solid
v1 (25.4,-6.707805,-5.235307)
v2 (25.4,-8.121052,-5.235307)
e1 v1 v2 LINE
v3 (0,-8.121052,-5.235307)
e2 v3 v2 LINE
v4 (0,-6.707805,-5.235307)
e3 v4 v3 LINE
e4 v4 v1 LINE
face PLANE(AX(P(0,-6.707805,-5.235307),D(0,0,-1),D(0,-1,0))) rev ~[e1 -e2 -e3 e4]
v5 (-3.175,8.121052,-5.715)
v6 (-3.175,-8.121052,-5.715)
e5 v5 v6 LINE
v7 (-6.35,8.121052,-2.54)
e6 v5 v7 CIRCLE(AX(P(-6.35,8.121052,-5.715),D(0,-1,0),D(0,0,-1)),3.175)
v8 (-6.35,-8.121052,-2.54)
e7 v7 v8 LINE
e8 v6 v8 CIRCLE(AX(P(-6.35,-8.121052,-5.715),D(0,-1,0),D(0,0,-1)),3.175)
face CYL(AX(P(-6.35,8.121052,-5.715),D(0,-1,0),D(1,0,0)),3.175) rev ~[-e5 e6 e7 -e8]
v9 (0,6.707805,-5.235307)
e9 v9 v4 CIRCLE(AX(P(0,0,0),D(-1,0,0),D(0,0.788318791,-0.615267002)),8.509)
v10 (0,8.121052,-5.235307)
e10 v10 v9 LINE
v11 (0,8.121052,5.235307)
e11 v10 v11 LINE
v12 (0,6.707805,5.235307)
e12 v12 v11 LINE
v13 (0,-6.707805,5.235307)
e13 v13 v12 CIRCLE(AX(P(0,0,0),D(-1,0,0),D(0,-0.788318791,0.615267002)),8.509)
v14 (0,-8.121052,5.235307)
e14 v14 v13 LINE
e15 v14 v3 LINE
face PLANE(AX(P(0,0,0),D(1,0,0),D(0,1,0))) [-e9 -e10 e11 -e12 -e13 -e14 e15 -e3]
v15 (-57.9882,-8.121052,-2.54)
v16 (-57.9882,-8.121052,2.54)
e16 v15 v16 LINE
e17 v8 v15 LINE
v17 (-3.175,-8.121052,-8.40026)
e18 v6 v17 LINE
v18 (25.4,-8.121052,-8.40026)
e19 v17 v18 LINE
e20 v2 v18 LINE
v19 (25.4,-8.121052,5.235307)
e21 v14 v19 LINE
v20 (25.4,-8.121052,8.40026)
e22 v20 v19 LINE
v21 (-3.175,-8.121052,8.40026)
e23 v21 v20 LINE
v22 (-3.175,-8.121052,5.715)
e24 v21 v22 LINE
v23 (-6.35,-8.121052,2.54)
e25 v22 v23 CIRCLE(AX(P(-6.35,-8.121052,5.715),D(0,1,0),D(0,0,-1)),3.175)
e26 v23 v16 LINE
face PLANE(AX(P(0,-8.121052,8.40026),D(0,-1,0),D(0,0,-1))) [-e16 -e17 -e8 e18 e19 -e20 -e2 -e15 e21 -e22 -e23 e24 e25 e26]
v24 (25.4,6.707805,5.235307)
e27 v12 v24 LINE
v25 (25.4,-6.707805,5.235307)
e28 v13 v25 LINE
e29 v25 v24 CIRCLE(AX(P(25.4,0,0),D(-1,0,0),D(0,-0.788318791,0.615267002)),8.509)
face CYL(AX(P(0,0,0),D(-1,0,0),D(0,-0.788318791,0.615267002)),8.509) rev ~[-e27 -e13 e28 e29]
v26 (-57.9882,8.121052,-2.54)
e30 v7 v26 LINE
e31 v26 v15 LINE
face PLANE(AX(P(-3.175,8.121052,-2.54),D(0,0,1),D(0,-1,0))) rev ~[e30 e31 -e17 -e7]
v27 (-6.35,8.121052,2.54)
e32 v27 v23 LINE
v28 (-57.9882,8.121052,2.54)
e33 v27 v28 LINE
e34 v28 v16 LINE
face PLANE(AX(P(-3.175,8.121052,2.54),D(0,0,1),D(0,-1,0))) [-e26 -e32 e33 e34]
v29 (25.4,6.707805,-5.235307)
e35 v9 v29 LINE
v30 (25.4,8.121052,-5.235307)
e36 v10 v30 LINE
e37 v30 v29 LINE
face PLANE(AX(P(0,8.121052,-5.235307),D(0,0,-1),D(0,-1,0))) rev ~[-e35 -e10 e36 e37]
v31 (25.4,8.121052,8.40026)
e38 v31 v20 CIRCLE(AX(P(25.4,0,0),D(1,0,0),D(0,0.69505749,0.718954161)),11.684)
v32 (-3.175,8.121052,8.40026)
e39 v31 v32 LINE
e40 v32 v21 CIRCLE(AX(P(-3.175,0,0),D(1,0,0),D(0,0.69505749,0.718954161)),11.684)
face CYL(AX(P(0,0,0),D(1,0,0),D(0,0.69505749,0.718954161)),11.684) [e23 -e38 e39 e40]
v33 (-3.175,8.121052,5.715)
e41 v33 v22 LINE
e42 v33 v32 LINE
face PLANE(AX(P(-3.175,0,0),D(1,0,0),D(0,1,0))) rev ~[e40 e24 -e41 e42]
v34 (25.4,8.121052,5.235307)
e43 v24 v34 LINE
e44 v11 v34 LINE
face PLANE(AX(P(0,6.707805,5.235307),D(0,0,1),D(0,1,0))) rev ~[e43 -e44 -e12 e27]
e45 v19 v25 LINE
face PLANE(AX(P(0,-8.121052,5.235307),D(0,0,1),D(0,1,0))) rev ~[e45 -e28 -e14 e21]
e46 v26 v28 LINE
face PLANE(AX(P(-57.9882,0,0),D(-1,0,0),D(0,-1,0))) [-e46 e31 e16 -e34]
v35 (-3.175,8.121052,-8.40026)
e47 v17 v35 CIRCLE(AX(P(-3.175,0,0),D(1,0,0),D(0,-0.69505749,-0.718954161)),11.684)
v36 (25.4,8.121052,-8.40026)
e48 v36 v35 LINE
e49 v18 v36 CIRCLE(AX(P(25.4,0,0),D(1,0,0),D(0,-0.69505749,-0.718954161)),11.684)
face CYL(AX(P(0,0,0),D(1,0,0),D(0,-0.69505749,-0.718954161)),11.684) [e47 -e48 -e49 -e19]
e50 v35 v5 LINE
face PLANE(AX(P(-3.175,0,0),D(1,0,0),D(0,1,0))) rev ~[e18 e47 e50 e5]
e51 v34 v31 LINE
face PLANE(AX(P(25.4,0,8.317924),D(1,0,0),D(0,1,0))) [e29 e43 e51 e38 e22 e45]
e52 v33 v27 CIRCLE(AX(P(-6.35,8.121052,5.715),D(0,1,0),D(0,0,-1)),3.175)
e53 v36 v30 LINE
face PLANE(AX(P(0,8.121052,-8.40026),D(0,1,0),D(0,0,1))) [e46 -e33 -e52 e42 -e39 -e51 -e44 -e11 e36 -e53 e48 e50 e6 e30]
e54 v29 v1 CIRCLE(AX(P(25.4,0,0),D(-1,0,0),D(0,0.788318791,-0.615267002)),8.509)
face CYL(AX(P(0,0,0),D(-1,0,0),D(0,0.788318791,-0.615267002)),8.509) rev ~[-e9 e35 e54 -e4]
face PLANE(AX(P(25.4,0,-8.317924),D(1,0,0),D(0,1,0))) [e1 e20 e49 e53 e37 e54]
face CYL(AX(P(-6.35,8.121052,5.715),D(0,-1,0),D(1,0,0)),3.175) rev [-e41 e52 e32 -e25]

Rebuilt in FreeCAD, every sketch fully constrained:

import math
import FreeCAD as App
import Part
import Sketcher
Q = App.Units.Quantity


def edges_at(feature, points):
    """Names of the edges that pass closest to the given points."""
    edges = feature.Shape.Edges
    near = lambda p: min(range(len(edges)), key=lambda i: edges[i].distToShape(Part.Vertex(*p))[0])
    return sorted({f"Edge{near(p) + 1}" for p in points})


def add_polygon(sketch, points):
    """Adds a closed chain of lines whose ends are joined by coincident constraints."""
    first, n = sketch.GeometryCount, len(points)
    for a, b in zip(points, points[1:] + points[:1]):
        sketch.addGeometry(Part.LineSegment(App.Vector(*a, 0), App.Vector(*b, 0)), False)
    for i in range(n):
        sketch.addConstraint(Sketcher.Constraint("Coincident", first + i, 2, first + (i + 1) % n, 1))

doc = App.newDocument("Part")
body = doc.addObject("PartDesign::Body", "Body")

# Sketch on YZ plane
sketch1 = body.newObject("Sketcher::SketchObject", "Sketch")
sketch1.AttachmentSupport = (doc.getObject("YZ_Plane"), [""])
sketch1.MapMode = "FlatFace"
sketch1.addGeometry(Part.LineSegment(App.Vector(-8.1, 8.4, 0), App.Vector(-8.1, 5.2, 0)), False)
sketch1.addGeometry(Part.LineSegment(App.Vector(-8.1, 5.2, 0), App.Vector(-6.7, 5.2, 0)), False)
sketch1.addGeometry(Part.ArcOfCircle(Part.Circle(App.Vector(0, 0, 0), App.Vector(0, 0, 1), 8.5), math.radians(38), math.radians(142)), False)
sketch1.addGeometry(Part.LineSegment(App.Vector(6.7, 5.2, 0), App.Vector(8.1, 5.2, 0)), False)
sketch1.addGeometry(Part.LineSegment(App.Vector(8.1, 5.2, 0), App.Vector(8.1, 8.4, 0)), False)
sketch1.addGeometry(Part.ArcOfCircle(Part.Circle(App.Vector(0, 0, 0), App.Vector(0, 0, 1), 11.7), math.radians(46), math.radians(134)), False)
sketch1.addConstraint(Sketcher.Constraint("Coincident", 0, 2, 1, 1))
sketch1.addConstraint(Sketcher.Constraint("Coincident", 1, 2, 2, 2))
sketch1.addConstraint(Sketcher.Constraint("Coincident", 2, 1, 3, 1))
sketch1.addConstraint(Sketcher.Constraint("Coincident", 3, 2, 4, 1))
sketch1.addConstraint(Sketcher.Constraint("Coincident", 4, 2, 5, 1))
sketch1.addConstraint(Sketcher.Constraint("Coincident", 5, 2, 0, 1))
sketch1.addConstraint(Sketcher.Constraint("Vertical", 0))
sketch1.addConstraint(Sketcher.Constraint("Horizontal", 1))
sketch1.addConstraint(Sketcher.Constraint("Horizontal", 3))
sketch1.addConstraint(Sketcher.Constraint("Vertical", 4))
sketch1.addConstraint(Sketcher.Constraint("Coincident", 2, 3, -1, 1))
sketch1.addConstraint(Sketcher.Constraint("Coincident", 5, 3, -1, 1))
sketch1.addConstraint(Sketcher.Constraint("Symmetric", 0, 2, 3, 2, -2))
sketch1.addConstraint(Sketcher.Constraint("Radius", 5, Q("0.46 in")))
sketch1.addConstraint(Sketcher.Constraint("Radius", 2, Q("0.335 in")))
sketch1.addConstraint(Sketcher.Constraint("DistanceX", 1, 1, 1, 2, 1.413247))
sketch1.addConstraint(Sketcher.Constraint("DistanceY", 0, 2, 0, 1, 3.164953))
pad1 = body.newObject("PartDesign::Pad", "Pad")
pad1.Profile = sketch1
pad1.Length = Q("1 in")
body2 = doc.addObject("PartDesign::Body", "Body001")

# Sketch on YZ plane
sketch2 = body2.newObject("Sketcher::SketchObject", "Sketch001")
sketch2.AttachmentSupport = (doc.getObject("YZ_Plane001"), [""])
sketch2.MapMode = "FlatFace"
sketch2.addGeometry(Part.LineSegment(App.Vector(-8.1, -5.2, 0), App.Vector(-8.1, -8.4, 0)), False)
sketch2.addGeometry(Part.ArcOfCircle(Part.Circle(App.Vector(0, 0, 0), App.Vector(0, 0, 1), 11.7), math.radians(-134), math.radians(-46)), False)
sketch2.addGeometry(Part.LineSegment(App.Vector(8.1, -8.4, 0), App.Vector(8.1, -5.2, 0)), False)
sketch2.addGeometry(Part.LineSegment(App.Vector(8.1, -5.2, 0), App.Vector(6.7, -5.2, 0)), False)
sketch2.addGeometry(Part.ArcOfCircle(Part.Circle(App.Vector(0, 0, 0), App.Vector(0, 0, 1), 8.5), math.radians(-142), math.radians(-38)), False)
sketch2.addGeometry(Part.LineSegment(App.Vector(-6.7, -5.2, 0), App.Vector(-8.1, -5.2, 0)), False)
sketch2.addConstraint(Sketcher.Constraint("Coincident", 0, 2, 1, 1))
sketch2.addConstraint(Sketcher.Constraint("Coincident", 1, 2, 2, 1))
sketch2.addConstraint(Sketcher.Constraint("Coincident", 2, 2, 3, 1))
sketch2.addConstraint(Sketcher.Constraint("Coincident", 3, 2, 4, 2))
sketch2.addConstraint(Sketcher.Constraint("Coincident", 4, 1, 5, 1))
sketch2.addConstraint(Sketcher.Constraint("Coincident", 5, 2, 0, 1))
sketch2.addConstraint(Sketcher.Constraint("Vertical", 0))
sketch2.addConstraint(Sketcher.Constraint("Vertical", 2))
sketch2.addConstraint(Sketcher.Constraint("Horizontal", 3))
sketch2.addConstraint(Sketcher.Constraint("Horizontal", 5))
sketch2.addConstraint(Sketcher.Constraint("Coincident", 1, 3, -1, 1))
sketch2.addConstraint(Sketcher.Constraint("Coincident", 4, 3, -1, 1))
sketch2.addConstraint(Sketcher.Constraint("Symmetric", 2, 2, 5, 2, -2))
sketch2.addConstraint(Sketcher.Constraint("Radius", 1, Q("0.46 in")))
sketch2.addConstraint(Sketcher.Constraint("Radius", 4, Q("0.335 in")))
sketch2.addConstraint(Sketcher.Constraint("DistanceX", 3, 2, 3, 1, 1.413247))
sketch2.addConstraint(Sketcher.Constraint("DistanceY", 0, 2, 0, 1, 3.164953))
pad2 = body2.newObject("PartDesign::Pad", "Pad001")
pad2.Profile = sketch2
pad2.Length = Q("1 in")
body.AllowCompound = True
doc.recompute()

boolean = body.newObject("PartDesign::Boolean", "Boolean")
boolean.Type = "Fuse"
boolean.addObjects([body2])

# Sketch on YZ plane
sketch3 = body.newObject("Sketcher::SketchObject", "Sketch002")
sketch3.AttachmentSupport = (doc.getObject("YZ_Plane"), [""])
sketch3.MapMode = "FlatFace"
sketch3.addGeometry(Part.ArcOfCircle(Part.Circle(App.Vector(0, 0, 0), App.Vector(0, 0, 1), 12), math.radians(46), math.radians(134)), False)
sketch3.addGeometry(Part.LineSegment(App.Vector(-8, 8, 0), App.Vector(-8, -8, 0)), False)
sketch3.addGeometry(Part.ArcOfCircle(Part.Circle(App.Vector(0, 0, 0), App.Vector(0, 0, 1), 12), math.radians(-134), math.radians(-46)), False)
sketch3.addGeometry(Part.LineSegment(App.Vector(8, -8, 0), App.Vector(8, 8, 0)), False)
sketch3.addConstraint(Sketcher.Constraint("Coincident", 0, 2, 1, 1))
sketch3.addConstraint(Sketcher.Constraint("Coincident", 1, 2, 2, 1))
sketch3.addConstraint(Sketcher.Constraint("Coincident", 2, 2, 3, 1))
sketch3.addConstraint(Sketcher.Constraint("Coincident", 3, 2, 0, 1))
sketch3.addConstraint(Sketcher.Constraint("Vertical", 1))
sketch3.addConstraint(Sketcher.Constraint("Vertical", 3))
sketch3.addConstraint(Sketcher.Constraint("Coincident", 0, 3, -1, 1))
sketch3.addConstraint(Sketcher.Constraint("Coincident", 2, 3, -1, 1))
sketch3.addConstraint(Sketcher.Constraint("Equal", 0, 2))
sketch3.addConstraint(Sketcher.Constraint("Horizontal", 1, 2, 2, 2))
sketch3.addConstraint(Sketcher.Constraint("Radius", 0, Q("0.46 in")))
sketch3.addConstraint(Sketcher.Constraint("DistanceY", 1, 2, 1, 1, 16.800521))
pad3 = body.newObject("PartDesign::Pad", "Pad002")
pad3.Profile = sketch3
pad3.Length = Q("0.125 in")
pad3.Reversed = True

# Sketch on YZ plane
sketch4 = body.newObject("Sketcher::SketchObject", "Sketch003")
sketch4.AttachmentSupport = (doc.getObject("YZ_Plane"), [""])
sketch4.MapMode = "FlatFace"
sketch4.AttachmentOffset = App.Placement(App.Vector(0, 0, -0.125 * 25.4), App.Rotation())
add_polygon(sketch4, [(8, 3), (8, -3), (-8, -3), (-8, 3)])  # lines 0-3
sketch4.addConstraint(Sketcher.Constraint("Vertical", 0))
sketch4.addConstraint(Sketcher.Constraint("Horizontal", 1))
sketch4.addConstraint(Sketcher.Constraint("Vertical", 2))
sketch4.addConstraint(Sketcher.Constraint("Horizontal", 3))
sketch4.addConstraint(Sketcher.Constraint("Symmetric", 0, 2, 2, 2, -1, 1))
sketch4.addConstraint(Sketcher.Constraint("DistanceY", 0, 2, 0, 1, Q("0.2 in")))
sketch4.addConstraint(Sketcher.Constraint("DistanceX", 1, 2, 1, 1, 16.242103))
pad4 = body.newObject("PartDesign::Pad", "Pad003")
pad4.Profile = sketch4
pad4.Length = Q("2.158 in")
pad4.Reversed = True
doc.recompute()

fillet = body.newObject("PartDesign::Fillet", "Fillet")
fillet.Base = (pad4, edges_at(pad4, [(-3.175, 0, 2.54), (-3.175, 0, -2.54)]))
fillet.Radius = Q("0.125 in")

doc.recompute()
